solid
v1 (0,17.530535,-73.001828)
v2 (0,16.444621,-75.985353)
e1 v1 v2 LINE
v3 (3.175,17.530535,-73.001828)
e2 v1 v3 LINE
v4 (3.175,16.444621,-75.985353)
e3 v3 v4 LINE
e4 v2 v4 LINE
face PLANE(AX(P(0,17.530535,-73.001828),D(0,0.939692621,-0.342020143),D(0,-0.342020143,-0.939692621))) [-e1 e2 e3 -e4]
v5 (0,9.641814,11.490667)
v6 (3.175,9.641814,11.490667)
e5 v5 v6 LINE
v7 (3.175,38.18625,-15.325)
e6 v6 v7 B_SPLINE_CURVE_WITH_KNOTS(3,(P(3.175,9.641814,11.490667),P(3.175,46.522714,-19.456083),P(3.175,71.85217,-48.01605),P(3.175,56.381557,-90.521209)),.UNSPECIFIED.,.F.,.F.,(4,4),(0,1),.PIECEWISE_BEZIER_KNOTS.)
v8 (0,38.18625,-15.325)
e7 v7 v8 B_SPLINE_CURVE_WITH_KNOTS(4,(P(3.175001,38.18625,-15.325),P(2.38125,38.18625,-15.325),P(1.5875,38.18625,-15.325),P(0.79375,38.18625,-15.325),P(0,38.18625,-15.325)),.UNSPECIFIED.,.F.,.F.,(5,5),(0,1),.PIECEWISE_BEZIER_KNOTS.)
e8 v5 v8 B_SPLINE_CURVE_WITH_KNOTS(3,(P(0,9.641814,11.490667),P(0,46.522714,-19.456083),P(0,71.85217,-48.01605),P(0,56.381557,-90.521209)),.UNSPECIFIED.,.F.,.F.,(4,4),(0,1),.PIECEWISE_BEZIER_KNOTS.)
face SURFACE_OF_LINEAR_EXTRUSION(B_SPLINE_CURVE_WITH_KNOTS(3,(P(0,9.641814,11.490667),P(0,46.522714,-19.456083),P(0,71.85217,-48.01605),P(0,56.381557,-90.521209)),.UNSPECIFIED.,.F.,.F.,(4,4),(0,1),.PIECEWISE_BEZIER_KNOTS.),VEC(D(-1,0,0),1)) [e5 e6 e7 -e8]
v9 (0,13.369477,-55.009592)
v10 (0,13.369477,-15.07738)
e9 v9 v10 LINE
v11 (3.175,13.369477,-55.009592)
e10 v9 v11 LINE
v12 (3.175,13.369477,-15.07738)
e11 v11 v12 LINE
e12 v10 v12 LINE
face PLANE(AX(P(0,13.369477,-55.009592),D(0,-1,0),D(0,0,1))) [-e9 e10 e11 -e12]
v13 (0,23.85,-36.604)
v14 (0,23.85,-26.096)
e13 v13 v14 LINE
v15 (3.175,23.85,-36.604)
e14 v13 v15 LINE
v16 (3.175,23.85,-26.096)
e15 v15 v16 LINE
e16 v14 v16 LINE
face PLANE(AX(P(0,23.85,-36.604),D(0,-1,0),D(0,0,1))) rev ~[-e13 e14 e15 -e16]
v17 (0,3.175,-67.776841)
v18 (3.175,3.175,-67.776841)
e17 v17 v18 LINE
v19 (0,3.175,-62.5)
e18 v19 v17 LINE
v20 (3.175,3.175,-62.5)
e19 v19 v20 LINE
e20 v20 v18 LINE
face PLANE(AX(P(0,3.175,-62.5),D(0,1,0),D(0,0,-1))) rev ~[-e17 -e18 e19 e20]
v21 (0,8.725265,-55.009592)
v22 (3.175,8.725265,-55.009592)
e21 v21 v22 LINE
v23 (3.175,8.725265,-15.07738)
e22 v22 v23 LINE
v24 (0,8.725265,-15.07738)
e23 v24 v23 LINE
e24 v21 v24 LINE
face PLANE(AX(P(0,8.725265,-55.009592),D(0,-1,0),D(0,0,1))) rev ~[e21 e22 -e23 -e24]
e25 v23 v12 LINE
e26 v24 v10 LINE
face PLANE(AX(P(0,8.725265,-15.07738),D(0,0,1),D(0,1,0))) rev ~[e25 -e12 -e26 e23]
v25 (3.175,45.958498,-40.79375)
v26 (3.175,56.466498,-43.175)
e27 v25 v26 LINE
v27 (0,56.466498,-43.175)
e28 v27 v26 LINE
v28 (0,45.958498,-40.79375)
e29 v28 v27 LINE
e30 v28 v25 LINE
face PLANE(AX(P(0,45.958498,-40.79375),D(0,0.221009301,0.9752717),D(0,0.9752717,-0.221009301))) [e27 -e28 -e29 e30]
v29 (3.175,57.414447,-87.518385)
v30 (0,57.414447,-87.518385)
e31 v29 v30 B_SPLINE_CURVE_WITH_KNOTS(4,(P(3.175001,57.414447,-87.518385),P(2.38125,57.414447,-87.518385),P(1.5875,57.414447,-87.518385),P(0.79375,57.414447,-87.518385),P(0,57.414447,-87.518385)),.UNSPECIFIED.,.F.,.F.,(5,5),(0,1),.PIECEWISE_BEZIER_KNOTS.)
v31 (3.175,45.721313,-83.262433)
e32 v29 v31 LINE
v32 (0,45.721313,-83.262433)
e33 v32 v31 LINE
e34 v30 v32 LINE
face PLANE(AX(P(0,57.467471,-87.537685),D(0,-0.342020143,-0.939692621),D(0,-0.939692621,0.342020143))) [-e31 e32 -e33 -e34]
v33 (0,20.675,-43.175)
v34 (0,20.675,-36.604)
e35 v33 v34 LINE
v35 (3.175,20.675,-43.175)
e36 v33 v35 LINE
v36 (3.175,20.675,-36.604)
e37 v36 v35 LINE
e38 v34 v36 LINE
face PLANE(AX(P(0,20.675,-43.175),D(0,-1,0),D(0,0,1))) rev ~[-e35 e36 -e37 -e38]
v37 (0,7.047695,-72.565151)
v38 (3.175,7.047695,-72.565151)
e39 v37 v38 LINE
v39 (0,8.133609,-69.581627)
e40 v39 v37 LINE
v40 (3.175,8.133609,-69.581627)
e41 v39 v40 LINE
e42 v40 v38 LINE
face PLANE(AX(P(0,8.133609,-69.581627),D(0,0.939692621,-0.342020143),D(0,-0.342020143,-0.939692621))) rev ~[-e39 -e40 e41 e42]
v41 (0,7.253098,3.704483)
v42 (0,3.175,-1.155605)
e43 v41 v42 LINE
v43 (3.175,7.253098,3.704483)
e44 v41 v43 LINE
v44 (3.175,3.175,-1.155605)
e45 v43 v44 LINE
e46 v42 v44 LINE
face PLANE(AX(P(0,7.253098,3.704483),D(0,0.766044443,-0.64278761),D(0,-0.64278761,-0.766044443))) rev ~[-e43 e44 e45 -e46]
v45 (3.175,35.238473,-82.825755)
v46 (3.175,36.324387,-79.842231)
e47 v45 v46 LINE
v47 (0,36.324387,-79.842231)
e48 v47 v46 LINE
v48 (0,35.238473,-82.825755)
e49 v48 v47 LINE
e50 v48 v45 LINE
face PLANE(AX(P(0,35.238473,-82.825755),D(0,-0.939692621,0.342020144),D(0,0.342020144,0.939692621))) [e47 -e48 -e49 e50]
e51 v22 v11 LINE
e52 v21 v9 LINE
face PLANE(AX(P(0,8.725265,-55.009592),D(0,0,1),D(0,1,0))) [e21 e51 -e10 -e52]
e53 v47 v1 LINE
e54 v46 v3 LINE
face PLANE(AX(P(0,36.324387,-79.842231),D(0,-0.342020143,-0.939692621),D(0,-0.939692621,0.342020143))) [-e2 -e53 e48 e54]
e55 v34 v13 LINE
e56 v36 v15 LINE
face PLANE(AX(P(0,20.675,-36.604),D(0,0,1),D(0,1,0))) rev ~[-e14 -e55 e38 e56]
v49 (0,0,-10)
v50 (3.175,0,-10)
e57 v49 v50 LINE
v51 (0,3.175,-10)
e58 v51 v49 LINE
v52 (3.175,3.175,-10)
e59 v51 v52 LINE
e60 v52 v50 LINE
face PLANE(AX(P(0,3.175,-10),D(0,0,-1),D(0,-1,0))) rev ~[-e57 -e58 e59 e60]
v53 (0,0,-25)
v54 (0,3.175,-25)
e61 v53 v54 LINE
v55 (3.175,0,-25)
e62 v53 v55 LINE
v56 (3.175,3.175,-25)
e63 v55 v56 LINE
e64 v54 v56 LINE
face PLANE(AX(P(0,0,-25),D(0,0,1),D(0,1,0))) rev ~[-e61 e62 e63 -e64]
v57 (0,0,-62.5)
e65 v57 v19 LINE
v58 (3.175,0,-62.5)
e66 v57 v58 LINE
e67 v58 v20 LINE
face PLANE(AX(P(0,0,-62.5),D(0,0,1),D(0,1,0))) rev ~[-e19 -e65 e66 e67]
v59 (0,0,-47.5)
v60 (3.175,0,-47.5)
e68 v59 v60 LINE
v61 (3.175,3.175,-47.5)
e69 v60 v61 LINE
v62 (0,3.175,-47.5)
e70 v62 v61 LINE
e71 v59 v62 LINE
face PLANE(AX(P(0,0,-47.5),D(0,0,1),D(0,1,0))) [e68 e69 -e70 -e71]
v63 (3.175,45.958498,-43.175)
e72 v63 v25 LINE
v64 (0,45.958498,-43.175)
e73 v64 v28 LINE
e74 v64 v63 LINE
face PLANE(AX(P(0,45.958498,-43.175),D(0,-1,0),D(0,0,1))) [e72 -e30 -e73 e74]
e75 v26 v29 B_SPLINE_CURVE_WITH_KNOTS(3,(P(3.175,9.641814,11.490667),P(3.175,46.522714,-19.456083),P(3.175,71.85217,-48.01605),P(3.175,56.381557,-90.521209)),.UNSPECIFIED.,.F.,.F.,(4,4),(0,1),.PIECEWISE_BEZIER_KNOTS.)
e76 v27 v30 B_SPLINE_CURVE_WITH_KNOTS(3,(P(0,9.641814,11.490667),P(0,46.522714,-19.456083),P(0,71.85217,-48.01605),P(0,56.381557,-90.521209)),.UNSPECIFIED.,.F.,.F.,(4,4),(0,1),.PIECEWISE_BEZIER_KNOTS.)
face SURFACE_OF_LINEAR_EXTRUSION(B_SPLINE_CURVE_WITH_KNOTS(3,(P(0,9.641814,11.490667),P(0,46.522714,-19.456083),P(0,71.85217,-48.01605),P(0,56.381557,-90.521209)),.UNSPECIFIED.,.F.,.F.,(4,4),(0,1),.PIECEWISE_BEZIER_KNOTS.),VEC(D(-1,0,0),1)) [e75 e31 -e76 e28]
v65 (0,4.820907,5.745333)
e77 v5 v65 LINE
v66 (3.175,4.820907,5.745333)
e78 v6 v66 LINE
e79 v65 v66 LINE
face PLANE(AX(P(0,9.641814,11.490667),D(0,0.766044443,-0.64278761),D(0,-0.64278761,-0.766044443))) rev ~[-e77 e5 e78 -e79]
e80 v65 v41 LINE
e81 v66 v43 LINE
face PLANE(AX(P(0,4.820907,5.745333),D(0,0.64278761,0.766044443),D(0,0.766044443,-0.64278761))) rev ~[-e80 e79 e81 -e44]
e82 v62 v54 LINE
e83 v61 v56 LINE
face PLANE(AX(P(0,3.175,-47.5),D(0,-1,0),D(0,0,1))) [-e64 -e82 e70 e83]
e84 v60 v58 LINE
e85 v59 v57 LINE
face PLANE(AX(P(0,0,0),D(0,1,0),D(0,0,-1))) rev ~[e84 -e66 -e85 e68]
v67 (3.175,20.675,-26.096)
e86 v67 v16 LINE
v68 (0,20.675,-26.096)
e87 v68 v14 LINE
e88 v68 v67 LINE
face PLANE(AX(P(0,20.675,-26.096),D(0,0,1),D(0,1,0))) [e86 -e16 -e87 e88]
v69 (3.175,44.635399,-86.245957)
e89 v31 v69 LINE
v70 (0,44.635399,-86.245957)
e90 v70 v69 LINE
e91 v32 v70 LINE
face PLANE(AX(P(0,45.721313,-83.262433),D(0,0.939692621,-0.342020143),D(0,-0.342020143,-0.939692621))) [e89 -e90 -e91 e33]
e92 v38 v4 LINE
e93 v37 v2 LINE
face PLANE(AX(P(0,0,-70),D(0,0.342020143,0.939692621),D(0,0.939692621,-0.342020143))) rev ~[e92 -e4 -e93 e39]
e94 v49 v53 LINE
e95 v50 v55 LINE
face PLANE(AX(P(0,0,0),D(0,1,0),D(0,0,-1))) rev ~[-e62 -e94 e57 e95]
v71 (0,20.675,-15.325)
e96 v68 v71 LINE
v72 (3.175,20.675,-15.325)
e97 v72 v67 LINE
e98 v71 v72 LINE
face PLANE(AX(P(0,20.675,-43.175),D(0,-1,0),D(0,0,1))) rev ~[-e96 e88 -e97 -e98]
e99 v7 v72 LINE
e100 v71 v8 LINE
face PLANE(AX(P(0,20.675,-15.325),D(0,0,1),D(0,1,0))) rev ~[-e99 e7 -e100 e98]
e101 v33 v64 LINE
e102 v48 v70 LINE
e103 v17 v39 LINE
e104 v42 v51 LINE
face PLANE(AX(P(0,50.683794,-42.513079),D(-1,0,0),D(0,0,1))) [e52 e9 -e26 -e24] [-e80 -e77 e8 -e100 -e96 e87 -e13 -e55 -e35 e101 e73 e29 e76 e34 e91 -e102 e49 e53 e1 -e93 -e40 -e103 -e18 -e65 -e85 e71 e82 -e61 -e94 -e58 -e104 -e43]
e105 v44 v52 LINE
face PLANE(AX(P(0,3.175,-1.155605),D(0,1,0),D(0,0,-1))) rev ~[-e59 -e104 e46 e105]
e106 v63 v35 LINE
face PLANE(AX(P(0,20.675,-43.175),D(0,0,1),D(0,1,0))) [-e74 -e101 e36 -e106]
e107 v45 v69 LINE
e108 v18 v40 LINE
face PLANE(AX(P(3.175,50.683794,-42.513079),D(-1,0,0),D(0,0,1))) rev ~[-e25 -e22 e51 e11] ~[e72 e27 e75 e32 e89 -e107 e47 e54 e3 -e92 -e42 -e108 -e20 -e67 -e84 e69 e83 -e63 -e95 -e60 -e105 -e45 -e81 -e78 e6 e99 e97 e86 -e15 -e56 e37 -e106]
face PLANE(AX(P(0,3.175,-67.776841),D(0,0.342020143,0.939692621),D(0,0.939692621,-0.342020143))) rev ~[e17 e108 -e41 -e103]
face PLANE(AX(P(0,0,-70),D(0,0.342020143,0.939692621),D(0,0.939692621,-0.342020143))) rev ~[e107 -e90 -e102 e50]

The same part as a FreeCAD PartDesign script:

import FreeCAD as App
import Part
import Sketcher
from FreeCAD import Vector
Q = App.Units.Quantity

doc = App.newDocument("Part")
params = doc.addObject("Spreadsheet::Sheet", "Params")
for row, (alias, value) in enumerate([
    ("sketch1_height", "70 mm"),
    ("pad1_length", "3.175 mm"),
    ("sketch2_height", "27.85 mm"),
    ("pad2_length", "3.175 mm"),
    ("sketch4_height", "10 mm"),
    ("sketch4_length", "20 mm"),
    ("sketch4_height2", "7.5 mm"),
    ("sketch4_height3", "22.5 mm"),
    ("sketch4_length2", "12.5 mm"),
    ("pocket3_length", "10 mm"),
], start=1):
    params.set(f"A{row}", alias)
    params.set(f"B{row}", "=" + value)
    params.setAlias(f"B{row}", alias)

body = doc.addObject("PartDesign::Body", "Body")

sketch1 = body.newObject("Sketcher::SketchObject", "Sketch")
sketch1.AttachmentSupport = (doc.getObject("YZ_Plane"), [""])
sketch1.MapMode = "FlatFace"
sketch1.addGeometry([
    Part.LineSegment(Vector(0, 0, 0), Vector(0, -70, 0)),
    Part.LineSegment(Vector(0, -70, 0), Vector(56.381557, -90.521209, 0)),
    Part.BSplineCurve([Vector(9.641814, 11.490667, 0), Vector(46.522714, -19.456083, 0), Vector(71.85217, -48.01605, 0), Vector(56.381557, -90.521209, 0)], [4, 4], [0, 1], False, 3, [1, 1, 1, 1], False),
    Part.LineSegment(Vector(9.641814, 11.490667, 0), Vector(0, 0, 0)),
], False)
sketch1.addConstraint([
    Sketcher.Constraint("Block", 2),
    Sketcher.Constraint("Coincident", 0, 2, 1, 1),
    Sketcher.Constraint("Coincident", 1, 2, 2, 2),
    Sketcher.Constraint("Coincident", 2, 1, 3, 1),
    Sketcher.Constraint("Coincident", 3, 2, 0, 1),
    Sketcher.Constraint("Vertical", 0),
    Sketcher.Constraint("Coincident", 3, 2, -1, 1),
    Sketcher.Constraint("DistanceY", 0, 2, 0, 1, 70.0),
])
sketch1.setExpression("Constraints[7]", "Params.sketch1_height")
pad1 = body.newObject("PartDesign::Pad", "Pad")
pad1.Profile = sketch1
pad1.setExpression("Length", "Params.pad1_length")

sketch2 = body.newObject("Sketcher::SketchObject", "Sketch001")
sketch2.AttachmentSupport = (doc.getObject("YZ_Plane"), [""])
sketch2.MapMode = "FlatFace"
sketch2.addGeometry([
    Part.LineSegment(Vector(56, -43, 0), Vector(21, -43, 0)),
    Part.LineSegment(Vector(21, -43, 0), Vector(21, -15, 0)),
    Part.LineSegment(Vector(21, -15, 0), Vector(56, -15, 0)),
    Part.LineSegment(Vector(56, -15, 0), Vector(56, -43, 0)),
], False)
sketch2.addConstraint([
    Sketcher.Constraint("Coincident", 0, 2, 1, 1),
    Sketcher.Constraint("Coincident", 1, 2, 2, 1),
    Sketcher.Constraint("Coincident", 2, 2, 3, 1),
    Sketcher.Constraint("Coincident", 3, 2, 0, 1),
    Sketcher.Constraint("Horizontal", 0),
    Sketcher.Constraint("Vertical", 1),
    Sketcher.Constraint("Horizontal", 2),
    Sketcher.Constraint("Vertical", 3),
    Sketcher.Constraint("DistanceY", 1, 1, 1, 2, 27.85),
    Sketcher.Constraint("DistanceX", -1, 1, 0, 2, 20.675),
    Sketcher.Constraint("DistanceY", 0, 2, -1, 1, 43.175),
    Sketcher.Constraint("DistanceX", 0, 2, 0, 1, 35.791498),
])
sketch2.setExpression("Constraints[8]", "Params.sketch2_height")
pocket1 = body.newObject("PartDesign::Pocket", "Pocket")
pocket1.Profile = sketch2
pocket1.Type = "ThroughAll"
pocket1.Reversed = True

sketch3 = body.newObject("Sketcher::SketchObject", "Sketch002")
sketch3.AttachmentSupport = (doc.getObject("YZ_Plane"), [""])
sketch3.MapMode = "FlatFace"
sketch3.addGeometry([
    Part.LineSegment(Vector(56.5, -43.2, 0), Vector(46, -43.2, 0)),
    Part.LineSegment(Vector(46, -43.2, 0), Vector(46, -40.8, 0)),
    Part.LineSegment(Vector(46, -40.8, 0), Vector(56.5, -43.2, 0)),
    Part.LineSegment(Vector(23.9, -36.6, 0), Vector(20.7, -36.6, 0)),
    Part.LineSegment(Vector(20.7, -36.6, 0), Vector(20.7, -26.1, 0)),
    Part.LineSegment(Vector(20.7, -26.1, 0), Vector(23.9, -26.1, 0)),
    Part.LineSegment(Vector(23.9, -26.1, 0), Vector(23.9, -36.6, 0)),
], False)
sketch3.addConstraint([
    Sketcher.Constraint("Coincident", 0, 2, 1, 1),
    Sketcher.Constraint("Coincident", 1, 2, 2, 1),
    Sketcher.Constraint("Coincident", 2, 2, 0, 1),
    Sketcher.Constraint("Coincident", 3, 2, 4, 1),
    Sketcher.Constraint("Coincident", 4, 2, 5, 1),
    Sketcher.Constraint("Coincident", 5, 2, 6, 1),
    Sketcher.Constraint("Coincident", 6, 2, 3, 1),
    Sketcher.Constraint("Horizontal", 0),
    Sketcher.Constraint("Vertical", 1),
    Sketcher.Constraint("Horizontal", 3),
    Sketcher.Constraint("Vertical", 4),
    Sketcher.Constraint("Horizontal", 5),
    Sketcher.Constraint("Vertical", 6),
    Sketcher.Constraint("Equal", 0, 4),
    Sketcher.Constraint("DistanceX", 0, 2, 0, 1, 10.508),
    Sketcher.Constraint("DistanceX", 3, 2, 3, 1, 3.175),
    Sketcher.Constraint("DistanceX", -1, 1, 5, 2, 23.85),
    Sketcher.Constraint("DistanceY", 0, 2, -1, 1, 43.175),
    Sketcher.Constraint("DistanceY", 3, 2, -1, 1, 36.604),
    Sketcher.Constraint("DistanceY", 1, 1, 1, 2, 2.38125),
    Sketcher.Constraint("DistanceX", -1, 1, 0, 2, 45.958498),
])
pad2 = body.newObject("PartDesign::Pad", "Pad001")
pad2.Profile = sketch3
pad2.setExpression("Length", "Params.pad2_length")

sketch4 = body.newObject("Sketcher::SketchObject", "Sketch003")
sketch4.AttachmentSupport = (doc.getObject("YZ_Plane"), [""])
sketch4.MapMode = "FlatFace"
sketch4.addGeometry([
    Part.LineSegment(Vector(44.6, -86.2, 0), Vector(45.7, -83.3, 0)),
    Part.LineSegment(Vector(45.7, -83.3, 0), Vector(57.5, -87.5, 0)),
    Part.LineSegment(Vector(57.5, -87.5, 0), Vector(56.4, -90.5, 0)),
    Part.LineSegment(Vector(56.4, -90.5, 0), Vector(44.6, -86.2, 0)),
    Part.LineSegment(Vector(17.5, -73, 0), Vector(36.3, -79.8, 0)),
    Part.LineSegment(Vector(36.3, -79.8, 0), Vector(35.2, -82.8, 0)),
    Part.LineSegment(Vector(35.2, -82.8, 0), Vector(16.4, -76, 0)),
    Part.LineSegment(Vector(16.4, -76, 0), Vector(17.5, -73, 0)),
    Part.LineSegment(Vector(7, -72.6, 0), Vector(0, -70, 0)),
    Part.LineSegment(Vector(0, -70, 0), Vector(0, -62.5, 0)),
    Part.LineSegment(Vector(0, -62.5, 0), Vector(3.2, -62.5, 0)),
    Part.LineSegment(Vector(3.2, -62.5, 0), Vector(3.2, -67.8, 0)),
    Part.LineSegment(Vector(3.2, -67.8, 0), Vector(8.1, -69.6, 0)),
    Part.LineSegment(Vector(8.1, -69.6, 0), Vector(7, -72.6, 0)),
    Part.LineSegment(Vector(3.2, -47.5, 0), Vector(0, -47.5, 0)),
    Part.LineSegment(Vector(0, -47.5, 0), Vector(0, -25, 0)),
    Part.LineSegment(Vector(0, -25, 0), Vector(3.2, -25, 0)),
    Part.LineSegment(Vector(3.2, -25, 0), Vector(3.2, -47.5, 0)),
    Part.LineSegment(Vector(3.2, -10, 0), Vector(0, -10, 0)),
    Part.LineSegment(Vector(0, -10, 0), Vector(0, 0, 0)),
    Part.LineSegment(Vector(0, 0, 0), Vector(4.8, 5.7, 0)),
    Part.LineSegment(Vector(4.8, 5.7, 0), Vector(7.3, 3.7, 0)),
    Part.LineSegment(Vector(7.3, 3.7, 0), Vector(3.2, -1.2, 0)),
    Part.LineSegment(Vector(3.2, -1.2, 0), Vector(3.2, -10, 0)),
], False)
sketch4.addConstraint([
    Sketcher.Constraint("Coincident", 0, 2, 1, 1),
    Sketcher.Constraint("Coincident", 1, 2, 2, 1),
    Sketcher.Constraint("Coincident", 2, 2, 3, 1),
    Sketcher.Constraint("Coincident", 3, 2, 0, 1),
    Sketcher.Constraint("Coincident", 4, 2, 5, 1),
    Sketcher.Constraint("Coincident", 5, 2, 6, 1),
    Sketcher.Constraint("Coincident", 6, 2, 7, 1),
    Sketcher.Constraint("Coincident", 7, 2, 4, 1),
    Sketcher.Constraint("Coincident", 8, 2, 9, 1),
    Sketcher.Constraint("Coincident", 9, 2, 10, 1),
    Sketcher.Constraint("Coincident", 10, 2, 11, 1),
    Sketcher.Constraint("Coincident", 11, 2, 12, 1),
    Sketcher.Constraint("Coincident", 12, 2, 13, 1),
    Sketcher.Constraint("Coincident", 13, 2, 8, 1),
    Sketcher.Constraint("Coincident", 14, 2, 15, 1),
    Sketcher.Constraint("Coincident", 15, 2, 16, 1),
    Sketcher.Constraint("Coincident", 16, 2, 17, 1),
    Sketcher.Constraint("Coincident", 17, 2, 14, 1),
    Sketcher.Constraint("Coincident", 18, 2, 19, 1),
    Sketcher.Constraint("Coincident", 19, 2, 20, 1),
    Sketcher.Constraint("Coincident", 20, 2, 21, 1),
    Sketcher.Constraint("Coincident", 21, 2, 22, 1),
    Sketcher.Constraint("Coincident", 22, 2, 23, 1),
    Sketcher.Constraint("Coincident", 23, 2, 18, 1),
    Sketcher.Constraint("Vertical", 9),
    Sketcher.Constraint("Horizontal", 10),
    Sketcher.Constraint("Vertical", 11),
    Sketcher.Constraint("Horizontal", 14),
    Sketcher.Constraint("Vertical", 15),
    Sketcher.Constraint("Horizontal", 16),
    Sketcher.Constraint("Vertical", 17),
    Sketcher.Constraint("Horizontal", 18),
    Sketcher.Constraint("Vertical", 19),
    Sketcher.Constraint("Vertical", 23),
    Sketcher.Constraint("Coincident", 19, 2, -1, 1),
    Sketcher.Constraint("PointOnObject", 8, 2, -2),
    Sketcher.Constraint("PointOnObject", 14, 2, -2),
    Sketcher.Constraint("Perpendicular", 0, 1),
    Sketcher.Constraint("Perpendicular", 1, 2),
    Sketcher.Constraint("Perpendicular", 2, 3),
    Sketcher.Constraint("Parallel", 3, 4),
    Sketcher.Constraint("Perpendicular", 4, 5),
    Sketcher.Constraint("Perpendicular", 5, 6),
    Sketcher.Constraint("Perpendicular", 6, 7),
    Sketcher.Constraint("Perpendicular", 7, 8),
    Sketcher.Constraint("Parallel", 8, 12),
    Sketcher.Constraint("Perpendicular", 12, 13),
    Sketcher.Constraint("Perpendicular", 20, 21),
    Sketcher.Constraint("Perpendicular", 21, 22),
    Sketcher.Constraint("Vertical", 11, 2, 16, 2),
    Sketcher.Constraint("Vertical", 17, 2, 22, 2),
    Sketcher.Constraint("Equal", 2, 5),
    Sketcher.Constraint("Equal", 7, 13),
    Sketcher.Constraint("Equal", 8, 20),
    Sketcher.Constraint("Equal", 13, 21),
    Sketcher.Constraint("DistanceY", 19, 1, 19, 2, 10.0),
    Sketcher.Constraint("Angle", 0, Q("70 deg")),
    Sketcher.Constraint("Angle", 20, Q("50 deg")),
    Sketcher.Constraint("Distance", 4, 20.0),
    Sketcher.Constraint("DistanceY", 9, 1, 9, 2, 7.5),
    Sketcher.Constraint("DistanceY", 15, 1, 15, 2, 22.5),
    Sketcher.Constraint("DistanceY", 8, 2, -1, 1, 70.0),
    Sketcher.Constraint("DistanceY", 15, 2, -1, 1, 25.0),
    Sketcher.Constraint("Distance", 1, 12.5),
    Sketcher.Constraint("Distance", 8, 7.5),
    Sketcher.Constraint("DistanceX", 10, 1, 10, 2, 3.175),
    Sketcher.Constraint("Distance", 0, 3.175),
    Sketcher.Constraint("DistanceX", -1, 1, 3, 2, 44.635399),
    Sketcher.Constraint("DistanceY", 0, 2, 4, 2, 3.420201),
    Sketcher.Constraint("DistanceY", 7, 2, 12, 2, 3.420201),
    Sketcher.Constraint("DistanceX", -1, 1, 6, 2, 16.444621),
])
sketch4.setExpression("Constraints[55]", "Params.sketch4_height")
sketch4.setExpression("Constraints[58]", "Params.sketch4_length")
sketch4.setExpression("Constraints[59]", "Params.sketch4_height2")
sketch4.setExpression("Constraints[60]", "Params.sketch4_height3")
sketch4.setExpression("Constraints[63]", "Params.sketch4_length2")
pocket2 = body.newObject("PartDesign::Pocket", "Pocket001")
pocket2.Profile = sketch4
pocket2.Type = "ThroughAll"
pocket2.Reversed = True

sketch5 = body.newObject("Sketcher::SketchObject", "Sketch004")
sketch5.AttachmentSupport = (doc.getObject("YZ_Plane"), [""])
sketch5.MapMode = "FlatFace"
sketch5.addGeometry([
    Part.LineSegment(Vector(13.4, -55, 0), Vector(8.7, -55, 0)),
    Part.LineSegment(Vector(8.7, -55, 0), Vector(8.7, -15.1, 0)),
    Part.LineSegment(Vector(8.7, -15.1, 0), Vector(13.4, -15.1, 0)),
    Part.LineSegment(Vector(13.4, -15.1, 0), Vector(13.4, -55, 0)),
], False)
sketch5.addConstraint([
    Sketcher.Constraint("Coincident", 0, 2, 1, 1),
    Sketcher.Constraint("Coincident", 1, 2, 2, 1),
    Sketcher.Constraint("Coincident", 2, 2, 3, 1),
    Sketcher.Constraint("Coincident", 3, 2, 0, 1),
    Sketcher.Constraint("Horizontal", 0),
    Sketcher.Constraint("Vertical", 1),
    Sketcher.Constraint("Horizontal", 2),
    Sketcher.Constraint("Vertical", 3),
    Sketcher.Constraint("DistanceX", 0, 2, 0, 1, 4.644212),
    Sketcher.Constraint("DistanceY", 1, 1, 1, 2, 39.932212),
    Sketcher.Constraint("DistanceY", 0, 2, -1, 1, 55.009592),
    Sketcher.Constraint("DistanceX", -1, 1, 0, 2, 8.725265),
])
pocket3 = body.newObject("PartDesign::Pocket", "Pocket002")
pocket3.Profile = sketch5
pocket3.setExpression("Length", "Params.pocket3_length")
pocket3.Reversed = True

doc.recompute()
